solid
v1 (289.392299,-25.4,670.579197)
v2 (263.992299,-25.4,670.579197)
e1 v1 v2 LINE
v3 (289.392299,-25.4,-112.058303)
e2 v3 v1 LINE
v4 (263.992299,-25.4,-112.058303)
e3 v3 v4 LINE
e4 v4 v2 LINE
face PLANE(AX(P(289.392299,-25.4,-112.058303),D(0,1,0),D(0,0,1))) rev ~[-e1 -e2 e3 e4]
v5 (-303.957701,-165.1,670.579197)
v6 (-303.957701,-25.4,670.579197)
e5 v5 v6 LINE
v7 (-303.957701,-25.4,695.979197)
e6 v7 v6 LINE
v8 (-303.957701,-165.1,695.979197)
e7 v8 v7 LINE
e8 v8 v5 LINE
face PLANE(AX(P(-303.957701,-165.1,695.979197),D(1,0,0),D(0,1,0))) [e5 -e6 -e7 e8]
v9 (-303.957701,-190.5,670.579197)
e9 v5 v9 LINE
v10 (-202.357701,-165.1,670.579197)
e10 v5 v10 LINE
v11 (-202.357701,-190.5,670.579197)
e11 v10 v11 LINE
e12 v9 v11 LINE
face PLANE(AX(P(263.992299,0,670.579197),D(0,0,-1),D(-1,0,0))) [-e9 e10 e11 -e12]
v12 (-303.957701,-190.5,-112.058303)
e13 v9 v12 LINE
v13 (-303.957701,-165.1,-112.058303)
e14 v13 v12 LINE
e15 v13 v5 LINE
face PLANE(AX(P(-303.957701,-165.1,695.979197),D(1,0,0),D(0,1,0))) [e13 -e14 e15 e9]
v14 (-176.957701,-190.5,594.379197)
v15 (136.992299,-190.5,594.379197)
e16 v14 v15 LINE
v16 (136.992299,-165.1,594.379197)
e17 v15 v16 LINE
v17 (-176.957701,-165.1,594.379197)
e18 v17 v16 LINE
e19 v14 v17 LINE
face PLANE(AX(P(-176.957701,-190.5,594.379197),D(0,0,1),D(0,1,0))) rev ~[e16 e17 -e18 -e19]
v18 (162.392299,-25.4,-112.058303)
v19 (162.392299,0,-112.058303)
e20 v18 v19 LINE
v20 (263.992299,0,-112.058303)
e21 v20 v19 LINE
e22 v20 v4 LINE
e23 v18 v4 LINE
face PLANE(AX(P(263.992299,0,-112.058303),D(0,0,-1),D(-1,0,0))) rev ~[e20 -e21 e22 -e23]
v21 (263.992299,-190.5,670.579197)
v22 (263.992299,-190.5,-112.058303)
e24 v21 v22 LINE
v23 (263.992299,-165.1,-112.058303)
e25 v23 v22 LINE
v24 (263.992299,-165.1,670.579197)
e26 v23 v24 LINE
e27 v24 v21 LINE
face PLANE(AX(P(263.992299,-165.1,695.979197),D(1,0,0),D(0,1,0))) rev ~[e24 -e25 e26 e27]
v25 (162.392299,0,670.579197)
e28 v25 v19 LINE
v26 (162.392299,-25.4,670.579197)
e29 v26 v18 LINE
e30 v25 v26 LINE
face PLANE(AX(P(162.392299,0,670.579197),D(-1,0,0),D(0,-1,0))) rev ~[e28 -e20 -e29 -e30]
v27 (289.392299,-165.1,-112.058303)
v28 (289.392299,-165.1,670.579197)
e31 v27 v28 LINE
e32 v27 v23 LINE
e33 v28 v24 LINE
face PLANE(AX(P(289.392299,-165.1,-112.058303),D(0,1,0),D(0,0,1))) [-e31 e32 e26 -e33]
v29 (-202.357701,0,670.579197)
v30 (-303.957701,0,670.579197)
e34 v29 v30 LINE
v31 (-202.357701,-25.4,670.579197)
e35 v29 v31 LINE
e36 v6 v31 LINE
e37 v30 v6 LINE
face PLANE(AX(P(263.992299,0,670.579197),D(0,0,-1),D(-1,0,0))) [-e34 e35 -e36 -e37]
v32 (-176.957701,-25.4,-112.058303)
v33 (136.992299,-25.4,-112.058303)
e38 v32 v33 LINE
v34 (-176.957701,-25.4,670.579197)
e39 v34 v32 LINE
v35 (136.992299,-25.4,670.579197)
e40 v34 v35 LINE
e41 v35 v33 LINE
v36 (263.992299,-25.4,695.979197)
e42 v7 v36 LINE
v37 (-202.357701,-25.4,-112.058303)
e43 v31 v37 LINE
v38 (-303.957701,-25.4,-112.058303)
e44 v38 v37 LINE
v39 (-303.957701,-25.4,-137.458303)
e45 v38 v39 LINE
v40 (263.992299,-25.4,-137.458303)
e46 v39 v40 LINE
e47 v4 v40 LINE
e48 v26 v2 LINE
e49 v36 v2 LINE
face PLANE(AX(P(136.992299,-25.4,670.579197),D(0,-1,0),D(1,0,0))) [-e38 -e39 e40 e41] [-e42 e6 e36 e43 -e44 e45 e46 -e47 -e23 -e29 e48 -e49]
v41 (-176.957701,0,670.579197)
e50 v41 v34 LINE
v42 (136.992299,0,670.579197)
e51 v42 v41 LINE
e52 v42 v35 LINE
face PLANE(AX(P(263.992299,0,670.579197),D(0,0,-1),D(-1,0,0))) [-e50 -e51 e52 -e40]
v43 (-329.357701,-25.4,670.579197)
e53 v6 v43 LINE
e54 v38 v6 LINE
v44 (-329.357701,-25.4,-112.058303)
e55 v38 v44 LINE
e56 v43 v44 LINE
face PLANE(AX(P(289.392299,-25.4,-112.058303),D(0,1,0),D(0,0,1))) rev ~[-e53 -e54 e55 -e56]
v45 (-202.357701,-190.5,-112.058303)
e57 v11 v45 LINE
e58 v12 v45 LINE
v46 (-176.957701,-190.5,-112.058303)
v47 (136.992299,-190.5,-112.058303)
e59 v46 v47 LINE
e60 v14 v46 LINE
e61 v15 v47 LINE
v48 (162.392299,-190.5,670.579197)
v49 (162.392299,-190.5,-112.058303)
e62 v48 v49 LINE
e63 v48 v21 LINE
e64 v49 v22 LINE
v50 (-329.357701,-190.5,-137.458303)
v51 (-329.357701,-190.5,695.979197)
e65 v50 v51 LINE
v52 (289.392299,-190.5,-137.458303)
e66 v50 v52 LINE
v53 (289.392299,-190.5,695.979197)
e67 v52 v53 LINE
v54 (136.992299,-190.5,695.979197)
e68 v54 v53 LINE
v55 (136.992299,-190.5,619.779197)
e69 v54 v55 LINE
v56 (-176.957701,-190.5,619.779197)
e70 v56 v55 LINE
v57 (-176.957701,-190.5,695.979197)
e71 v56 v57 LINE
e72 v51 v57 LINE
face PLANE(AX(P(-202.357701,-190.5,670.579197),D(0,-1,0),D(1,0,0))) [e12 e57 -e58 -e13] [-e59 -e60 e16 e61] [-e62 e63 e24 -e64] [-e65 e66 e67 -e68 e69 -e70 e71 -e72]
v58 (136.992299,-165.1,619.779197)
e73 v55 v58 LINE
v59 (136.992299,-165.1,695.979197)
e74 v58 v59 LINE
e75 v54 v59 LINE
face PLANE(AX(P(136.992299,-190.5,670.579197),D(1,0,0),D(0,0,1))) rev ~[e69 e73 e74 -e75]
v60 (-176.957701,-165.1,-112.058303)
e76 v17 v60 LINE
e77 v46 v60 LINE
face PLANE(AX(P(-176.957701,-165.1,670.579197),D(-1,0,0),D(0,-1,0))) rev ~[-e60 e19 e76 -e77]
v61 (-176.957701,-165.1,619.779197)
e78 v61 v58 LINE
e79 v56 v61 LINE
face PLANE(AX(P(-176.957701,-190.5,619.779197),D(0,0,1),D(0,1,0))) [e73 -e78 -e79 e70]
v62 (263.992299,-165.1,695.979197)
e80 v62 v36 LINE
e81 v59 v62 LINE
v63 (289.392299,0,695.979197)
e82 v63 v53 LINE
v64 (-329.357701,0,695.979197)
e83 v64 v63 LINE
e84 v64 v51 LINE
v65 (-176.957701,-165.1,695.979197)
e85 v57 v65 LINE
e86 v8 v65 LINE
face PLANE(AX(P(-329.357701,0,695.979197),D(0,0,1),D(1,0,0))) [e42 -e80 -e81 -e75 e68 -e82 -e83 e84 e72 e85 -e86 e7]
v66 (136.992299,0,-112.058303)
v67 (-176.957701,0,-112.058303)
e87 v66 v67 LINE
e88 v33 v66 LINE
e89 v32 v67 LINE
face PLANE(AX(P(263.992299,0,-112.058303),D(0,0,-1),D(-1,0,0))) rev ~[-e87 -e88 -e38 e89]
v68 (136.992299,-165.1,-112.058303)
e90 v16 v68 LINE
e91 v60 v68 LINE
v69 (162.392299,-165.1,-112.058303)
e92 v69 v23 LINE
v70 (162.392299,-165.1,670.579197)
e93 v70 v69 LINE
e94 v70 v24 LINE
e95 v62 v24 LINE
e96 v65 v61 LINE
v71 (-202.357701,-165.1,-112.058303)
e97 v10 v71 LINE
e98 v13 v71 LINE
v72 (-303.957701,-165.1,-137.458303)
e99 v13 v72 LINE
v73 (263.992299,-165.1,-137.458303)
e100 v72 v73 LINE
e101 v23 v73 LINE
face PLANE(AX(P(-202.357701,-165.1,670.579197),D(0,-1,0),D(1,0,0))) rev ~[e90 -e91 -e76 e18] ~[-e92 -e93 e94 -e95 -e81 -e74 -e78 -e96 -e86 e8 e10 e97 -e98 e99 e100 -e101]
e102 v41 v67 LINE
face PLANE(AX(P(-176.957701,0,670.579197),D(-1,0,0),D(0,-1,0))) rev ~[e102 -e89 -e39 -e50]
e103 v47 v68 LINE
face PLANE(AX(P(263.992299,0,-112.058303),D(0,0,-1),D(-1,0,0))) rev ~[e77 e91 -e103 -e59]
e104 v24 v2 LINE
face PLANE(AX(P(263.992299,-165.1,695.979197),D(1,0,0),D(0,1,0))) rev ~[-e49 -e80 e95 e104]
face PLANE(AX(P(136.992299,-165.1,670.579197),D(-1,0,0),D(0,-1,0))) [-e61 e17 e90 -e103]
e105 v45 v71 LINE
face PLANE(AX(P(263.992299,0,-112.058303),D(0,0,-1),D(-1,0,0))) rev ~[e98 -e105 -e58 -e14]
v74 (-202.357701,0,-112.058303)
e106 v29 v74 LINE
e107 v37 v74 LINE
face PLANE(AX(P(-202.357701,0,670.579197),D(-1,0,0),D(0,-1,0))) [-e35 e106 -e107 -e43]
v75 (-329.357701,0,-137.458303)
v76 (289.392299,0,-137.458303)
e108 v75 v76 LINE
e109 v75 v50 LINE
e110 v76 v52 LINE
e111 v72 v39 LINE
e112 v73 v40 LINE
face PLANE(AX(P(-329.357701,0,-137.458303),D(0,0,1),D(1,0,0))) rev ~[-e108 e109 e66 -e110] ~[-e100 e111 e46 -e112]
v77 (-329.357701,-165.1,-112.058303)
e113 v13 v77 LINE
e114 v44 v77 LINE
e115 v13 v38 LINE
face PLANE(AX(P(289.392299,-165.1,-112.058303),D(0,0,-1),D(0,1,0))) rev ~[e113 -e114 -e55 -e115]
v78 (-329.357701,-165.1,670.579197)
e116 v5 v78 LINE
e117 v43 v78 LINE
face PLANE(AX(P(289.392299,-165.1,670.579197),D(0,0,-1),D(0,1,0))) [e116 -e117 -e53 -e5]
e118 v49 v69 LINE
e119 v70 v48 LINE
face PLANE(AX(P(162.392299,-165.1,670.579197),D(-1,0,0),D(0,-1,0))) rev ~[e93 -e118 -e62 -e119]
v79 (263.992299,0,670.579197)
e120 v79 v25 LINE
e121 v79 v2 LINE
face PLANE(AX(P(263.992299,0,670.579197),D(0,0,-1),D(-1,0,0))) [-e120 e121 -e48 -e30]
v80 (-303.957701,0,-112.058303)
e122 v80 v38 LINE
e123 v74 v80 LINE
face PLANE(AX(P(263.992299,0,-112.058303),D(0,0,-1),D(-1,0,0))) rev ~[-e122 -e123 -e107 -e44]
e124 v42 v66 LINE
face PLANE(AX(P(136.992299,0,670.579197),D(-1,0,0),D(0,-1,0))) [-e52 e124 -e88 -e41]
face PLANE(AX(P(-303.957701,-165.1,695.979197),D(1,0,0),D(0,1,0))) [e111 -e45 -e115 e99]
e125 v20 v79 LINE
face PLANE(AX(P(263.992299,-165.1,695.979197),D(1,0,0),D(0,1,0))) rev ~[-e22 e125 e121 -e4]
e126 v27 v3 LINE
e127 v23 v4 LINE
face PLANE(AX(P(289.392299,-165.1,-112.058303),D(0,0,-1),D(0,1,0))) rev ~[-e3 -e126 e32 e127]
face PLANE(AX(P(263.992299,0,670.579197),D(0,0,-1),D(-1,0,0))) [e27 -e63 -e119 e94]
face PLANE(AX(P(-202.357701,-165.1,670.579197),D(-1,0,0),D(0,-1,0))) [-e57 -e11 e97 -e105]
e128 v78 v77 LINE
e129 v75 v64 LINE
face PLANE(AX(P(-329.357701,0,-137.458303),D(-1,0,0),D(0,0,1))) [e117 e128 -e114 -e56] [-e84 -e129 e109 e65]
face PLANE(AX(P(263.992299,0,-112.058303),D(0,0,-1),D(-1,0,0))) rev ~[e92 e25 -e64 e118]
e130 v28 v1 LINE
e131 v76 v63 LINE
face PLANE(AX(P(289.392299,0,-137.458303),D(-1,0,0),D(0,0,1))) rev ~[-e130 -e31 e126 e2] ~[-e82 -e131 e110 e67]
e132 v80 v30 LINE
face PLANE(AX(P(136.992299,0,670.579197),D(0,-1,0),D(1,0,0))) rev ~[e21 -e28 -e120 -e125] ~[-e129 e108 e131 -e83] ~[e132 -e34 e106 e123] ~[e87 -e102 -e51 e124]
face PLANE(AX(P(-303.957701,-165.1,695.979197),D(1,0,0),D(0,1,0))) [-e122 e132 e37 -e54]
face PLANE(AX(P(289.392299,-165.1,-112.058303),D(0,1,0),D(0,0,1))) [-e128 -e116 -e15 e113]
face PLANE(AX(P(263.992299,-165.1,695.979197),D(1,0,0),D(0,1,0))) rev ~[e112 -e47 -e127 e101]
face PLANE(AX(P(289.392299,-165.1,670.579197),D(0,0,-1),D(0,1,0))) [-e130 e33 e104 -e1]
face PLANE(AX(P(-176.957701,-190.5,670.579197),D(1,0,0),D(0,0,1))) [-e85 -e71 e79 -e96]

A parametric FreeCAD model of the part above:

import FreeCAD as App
import Part
import Sketcher
from FreeCAD import Vector
Q = App.Units.Quantity


def add_polygon(sketch, points):
    """Adds a closed chain of lines whose ends are joined by coincident constraints."""
    first, n = sketch.GeometryCount, len(points)
    for a, b in zip(points, points[1:] + points[:1]):
        sketch.addGeometry(Part.LineSegment(App.Vector(*a, 0), App.Vector(*b, 0)), False)
    for i in range(n):
        sketch.addConstraint(Sketcher.Constraint("Coincident", first + i, 2, first + (i + 1) % n, 1))

doc = App.newDocument("Part")
body = doc.addObject("PartDesign::Body", "Body")

# Sketch on XZ plane
sketch1 = doc.addObject("Sketcher::SketchObject", "Sketch")
body.addObject(sketch1)
sketch1.AttachmentSupport = (doc.XZ_Plane, [""])
sketch1.MapMode = "FlatFace"
add_polygon(sketch1, [(-329, 696), (-329, -137), (289, -137), (289, 696)])  # lines 0-3
sketch1.addConstraint(Sketcher.Constraint("Vertical", 0))
sketch1.addConstraint(Sketcher.Constraint("Horizontal", 1))
sketch1.addConstraint(Sketcher.Constraint("Vertical", 2))
sketch1.addConstraint(Sketcher.Constraint("Horizontal", 3))
sketch1.addConstraint(Sketcher.Constraint("DistanceY", 0, 2, 0, 1, Q("32.8125 in")))
sketch1.addConstraint(Sketcher.Constraint("DistanceX", 1, 1, 1, 2, Q("618.75 mm")))
sketch1.addConstraint(Sketcher.Constraint("DistanceX", 0, 2, -1, 1, Q("329.357701 mm")))
sketch1.addConstraint(Sketcher.Constraint("DistanceY", 0, 2, -1, 1, Q("137.458303 mm")))
pad1 = doc.addObject("PartDesign::Pad", "Pad")
body.addObject(pad1)
pad1.Profile = sketch1
pad1.Length = Q("7.5 in")

# Sketch on XY plane
sketch2 = doc.addObject("Sketcher::SketchObject", "Sketch001")
body.addObject(sketch2)
sketch2.AttachmentSupport = (doc.XY_Plane, [""])
sketch2.MapMode = "FlatFace"
sketch2.AttachmentOffset = App.Placement(Vector(0, 0, 695.979197), App.Rotation())
add_polygon(sketch2, [(-304, -25), (-304, -165), (264, -165), (264, -25)])  # lines 0-3
sketch2.addConstraint(Sketcher.Constraint("Vertical", 0))
sketch2.addConstraint(Sketcher.Constraint("Horizontal", 1))
sketch2.addConstraint(Sketcher.Constraint("Vertical", 2))
sketch2.addConstraint(Sketcher.Constraint("Horizontal", 3))
sketch2.addConstraint(Sketcher.Constraint("DistanceY", 0, 2, 0, 1, Q("5.5 in")))
sketch2.addConstraint(Sketcher.Constraint("DistanceY", 2, 2, -1, 1, Q("1 in")))
sketch2.addConstraint(Sketcher.Constraint("DistanceX", 1, 1, 1, 2, Q("567.95 mm")))
sketch2.addConstraint(Sketcher.Constraint("DistanceX", 0, 2, -1, 1, Q("303.957701 mm")))
pocket1 = doc.addObject("PartDesign::Pocket", "Pocket")
body.addObject(pocket1)
pocket1.Profile = sketch2
pocket1.Type = "ThroughAll"

# Sketch on XZ plane
sketch3 = doc.addObject("Sketcher::SketchObject", "Sketch002")
body.addObject(sketch3)
sketch3.AttachmentSupport = (doc.XZ_Plane, [""])
sketch3.MapMode = "FlatFace"
add_polygon(sketch3, [(264, 671), (264, -112), (-304, -112), (-304, 671)])  # lines 0-3
sketch3.addConstraint(Sketcher.Constraint("Vertical", 0))
sketch3.addConstraint(Sketcher.Constraint("Horizontal", 1))
sketch3.addConstraint(Sketcher.Constraint("Vertical", 2))
sketch3.addConstraint(Sketcher.Constraint("Horizontal", 3))
sketch3.addConstraint(Sketcher.Constraint("DistanceY", 0, 2, 0, 1, Q("30.8125 in")))
sketch3.addConstraint(Sketcher.Constraint("DistanceX", 1, 2, 1, 1, Q("567.95 mm")))
sketch3.addConstraint(Sketcher.Constraint("DistanceX", -1, 1, 0, 2, Q("263.992299 mm")))
sketch3.addConstraint(Sketcher.Constraint("DistanceY", 0, 2, -1, 1, Q("112.058303 mm")))
pocket2 = doc.addObject("PartDesign::Pocket", "Pocket001")
body.addObject(pocket2)
pocket2.Profile = sketch3
pocket2.Type = "ThroughAll"
pocket2.Reversed = True

# Sketch on YZ plane
sketch4 = doc.addObject("Sketcher::SketchObject", "Sketch003")
body.addObject(sketch4)
sketch4.AttachmentSupport = (doc.YZ_Plane, [""])
sketch4.MapMode = "FlatFace"
sketch4.AttachmentOffset = App.Placement(Vector(0, 0, 289.392299), App.Rotation())
add_polygon(sketch4, [(-165, 671), (-165, -112), (-25, -112), (-25, 671)])  # lines 0-3
sketch4.addConstraint(Sketcher.Constraint("Vertical", 0))
sketch4.addConstraint(Sketcher.Constraint("Horizontal", 1))
sketch4.addConstraint(Sketcher.Constraint("Vertical", 2))
sketch4.addConstraint(Sketcher.Constraint("Horizontal", 3))
sketch4.addConstraint(Sketcher.Constraint("DistanceX", 1, 1, 1, 2, Q("5.5 in")))
sketch4.addConstraint(Sketcher.Constraint("DistanceX", 1, 2, -1, 1, Q("1 in")))
sketch4.addConstraint(Sketcher.Constraint("DistanceY", 0, 2, 0, 1, Q("30.8125 in")))
sketch4.addConstraint(Sketcher.Constraint("DistanceY", 0, 2, -1, 1, Q("112.058303 mm")))
pocket3 = doc.addObject("PartDesign::Pocket", "Pocket002")
body.addObject(pocket3)
pocket3.Profile = sketch4
pocket3.Type = "ThroughAll"

# Sketch on XY plane
sketch5 = doc.addObject("Sketcher::SketchObject", "Sketch004")
body.addObject(sketch5)
sketch5.AttachmentSupport = (doc.XY_Plane, [""])
sketch5.MapMode = "FlatFace"
sketch5.AttachmentOffset = App.Placement(Vector(0, 0, 670.579197), App.Rotation())
add_polygon(sketch5, [(137, -190), (137, -165), (162, -165), (162, -190)])  # lines 0-3
sketch5.addConstraint(Sketcher.Constraint("Vertical", 0))
sketch5.addConstraint(Sketcher.Constraint("Horizontal", 1))
sketch5.addConstraint(Sketcher.Constraint("Vertical", 2))
sketch5.addConstraint(Sketcher.Constraint("Horizontal", 3))
sketch5.addConstraint(Sketcher.Constraint("Equal", 3, 0))
sketch5.addConstraint(Sketcher.Constraint("DistanceX", 1, 1, 1, 2, Q("1 in")))
sketch5.addConstraint(Sketcher.Constraint("DistanceY", 0, 2, -1, 1, Q("6.5 in")))
sketch5.addConstraint(Sketcher.Constraint("DistanceX", -1, 1, 0, 2, Q("136.992299 mm")))
pad2 = doc.addObject("PartDesign::Pad", "Pad001")
body.addObject(pad2)
pad2.Profile = sketch5
pad2.Length = Q("31 in")
pad2.Reversed = True

# Sketch on XY plane
sketch6 = doc.addObject("Sketcher::SketchObject", "Sketch005")
body.addObject(sketch6)
sketch6.AttachmentSupport = (doc.XY_Plane, [""])
sketch6.MapMode = "FlatFace"
sketch6.AttachmentOffset = App.Placement(Vector(0, 0, 670.579197), App.Rotation())
add_polygon(sketch6, [(-202, -190), (-202, -165), (-177, -165), (-177, -190)])  # lines 0-3
sketch6.addConstraint(Sketcher.Constraint("Vertical", 0))
sketch6.addConstraint(Sketcher.Constraint("Horizontal", 1))
sketch6.addConstraint(Sketcher.Constraint("Vertical", 2))
sketch6.addConstraint(Sketcher.Constraint("Horizontal", 3))
sketch6.addConstraint(Sketcher.Constraint("Equal", 3, 0))
sketch6.addConstraint(Sketcher.Constraint("DistanceX", 1, 1, 1, 2, Q("1 in")))
sketch6.addConstraint(Sketcher.Constraint("DistanceY", 0, 2, -1, 1, Q("6.5 in")))
sketch6.addConstraint(Sketcher.Constraint("DistanceX", 0, 2, -1, 1, Q("202.357701 mm")))
pad3 = doc.addObject("PartDesign::Pad", "Pad002")
body.addObject(pad3)
pad3.Profile = sketch6
pad3.Length = Q("31 in")
pad3.Reversed = True

# Sketch on XY plane
sketch7 = doc.addObject("Sketcher::SketchObject", "Sketch006")
body.addObject(sketch7)
sketch7.AttachmentSupport = (doc.XY_Plane, [""])
sketch7.MapMode = "FlatFace"
sketch7.AttachmentOffset = App.Placement(Vector(0, 0, 670.579197), App.Rotation())
add_polygon(sketch7, [(-202, -25), (-202, 0), (-177, 0), (-177, -25)])  # lines 0-3
sketch7.addConstraint(Sketcher.Constraint("Vertical", 0))
sketch7.addConstraint(Sketcher.Constraint("Horizontal", 1))
sketch7.addConstraint(Sketcher.Constraint("Vertical", 2))
sketch7.addConstraint(Sketcher.Constraint("Horizontal", 3))
sketch7.addConstraint(Sketcher.Constraint("PointOnObject", 0, 2, -1))
sketch7.addConstraint(Sketcher.Constraint("Equal", 3, 0))
sketch7.addConstraint(Sketcher.Constraint("DistanceX", 1, 1, 1, 2, Q("1 in")))
sketch7.addConstraint(Sketcher.Constraint("DistanceX", 0, 2, -1, 1, Q("202.357701 mm")))
pad4 = doc.addObject("PartDesign::Pad", "Pad003")
body.addObject(pad4)
pad4.Profile = sketch7
pad4.Length = Q("31 in")
pad4.Reversed = True

# Sketch on XY plane
sketch8 = doc.addObject("Sketcher::SketchObject", "Sketch007")
body.addObject(sketch8)
sketch8.AttachmentSupport = (doc.XY_Plane, [""])
sketch8.MapMode = "FlatFace"
sketch8.AttachmentOffset = App.Placement(Vector(0, 0, 670.579197), App.Rotation())
add_polygon(sketch8, [(137, -25), (137, 0), (162, 0), (162, -25)])  # lines 0-3
sketch8.addConstraint(Sketcher.Constraint("Vertical", 0))
sketch8.addConstraint(Sketcher.Constraint("Horizontal", 1))
sketch8.addConstraint(Sketcher.Constraint("Vertical", 2))
sketch8.addConstraint(Sketcher.Constraint("Horizontal", 3))
sketch8.addConstraint(Sketcher.Constraint("PointOnObject", 0, 2, -1))
sketch8.addConstraint(Sketcher.Constraint("Equal", 3, 0))
sketch8.addConstraint(Sketcher.Constraint("DistanceX", 1, 1, 1, 2, Q("1 in")))
sketch8.addConstraint(Sketcher.Constraint("DistanceX", -1, 1, 0, 2, Q("136.992299 mm")))
pad5 = doc.addObject("PartDesign::Pad", "Pad004")
body.addObject(pad5)
pad5.Profile = sketch8
pad5.Length = Q("31 in")
pad5.Reversed = True

# Sketch on YZ plane
sketch9 = doc.addObject("Sketcher::SketchObject", "Sketch008")
body.addObject(sketch9)
sketch9.AttachmentSupport = (doc.YZ_Plane, [""])
sketch9.MapMode = "FlatFace"
sketch9.AttachmentOffset = App.Placement(Vector(0, 0, -176.957701), App.Rotation())
add_polygon(sketch9, [(-190, 620), (-190, 594), (-165, 594), (-165, 620)])  # lines 0-3
sketch9.addConstraint(Sketcher.Constraint("Vertical", 0))
sketch9.addConstraint(Sketcher.Constraint("Horizontal", 1))
sketch9.addConstraint(Sketcher.Constraint("Vertical", 2))
sketch9.addConstraint(Sketcher.Constraint("Horizontal", 3))
sketch9.addConstraint(Sketcher.Constraint("Equal", 3, 0))
sketch9.addConstraint(Sketcher.Constraint("DistanceX", 1, 1, 1, 2, Q("1 in")))
sketch9.addConstraint(Sketcher.Constraint("DistanceX", 0, 2, -1, 1, Q("7.5 in")))
sketch9.addConstraint(Sketcher.Constraint("DistanceY", -1, 1, 0, 2, Q("594.379197 mm")))
pad6 = doc.addObject("PartDesign::Pad", "Pad005")
body.addObject(pad6)
pad6.Profile = sketch9
pad6.Length = 313.95

# Sketch on XZ plane
sketch10 = doc.addObject("Sketcher::SketchObject", "Sketch009")
body.addObject(sketch10)
sketch10.AttachmentSupport = (doc.XZ_Plane, [""])
sketch10.MapMode = "FlatFace"
sketch10.AttachmentOffset = App.Placement(Vector(0, 0, 7.5 * 25.4), App.Rotation())
add_polygon(sketch10, [(-177, 696), (-177, 671), (137, 671), (137, 696)])  # lines 0-3
sketch10.addConstraint(Sketcher.Constraint("Vertical", 0))
sketch10.addConstraint(Sketcher.Constraint("Horizontal", 1))
sketch10.addConstraint(Sketcher.Constraint("Vertical", 2))
sketch10.addConstraint(Sketcher.Constraint("Horizontal", 3))
sketch10.addConstraint(Sketcher.Constraint("DistanceY", 0, 2, 0, 1, Q("1 in")))
sketch10.addConstraint(Sketcher.Constraint("DistanceX", 1, 1, 1, 2, Q("313.95 mm")))
sketch10.addConstraint(Sketcher.Constraint("DistanceX", 0, 2, -1, 1, Q("176.957701 mm")))
sketch10.addConstraint(Sketcher.Constraint("DistanceY", -1, 1, 0, 2, Q("670.579197 mm")))
pocket4 = doc.addObject("PartDesign::Pocket", "Pocket003")
body.addObject(pocket4)
pocket4.Profile = sketch10
pocket4.Length = Q("1 in")

doc.recompute()
